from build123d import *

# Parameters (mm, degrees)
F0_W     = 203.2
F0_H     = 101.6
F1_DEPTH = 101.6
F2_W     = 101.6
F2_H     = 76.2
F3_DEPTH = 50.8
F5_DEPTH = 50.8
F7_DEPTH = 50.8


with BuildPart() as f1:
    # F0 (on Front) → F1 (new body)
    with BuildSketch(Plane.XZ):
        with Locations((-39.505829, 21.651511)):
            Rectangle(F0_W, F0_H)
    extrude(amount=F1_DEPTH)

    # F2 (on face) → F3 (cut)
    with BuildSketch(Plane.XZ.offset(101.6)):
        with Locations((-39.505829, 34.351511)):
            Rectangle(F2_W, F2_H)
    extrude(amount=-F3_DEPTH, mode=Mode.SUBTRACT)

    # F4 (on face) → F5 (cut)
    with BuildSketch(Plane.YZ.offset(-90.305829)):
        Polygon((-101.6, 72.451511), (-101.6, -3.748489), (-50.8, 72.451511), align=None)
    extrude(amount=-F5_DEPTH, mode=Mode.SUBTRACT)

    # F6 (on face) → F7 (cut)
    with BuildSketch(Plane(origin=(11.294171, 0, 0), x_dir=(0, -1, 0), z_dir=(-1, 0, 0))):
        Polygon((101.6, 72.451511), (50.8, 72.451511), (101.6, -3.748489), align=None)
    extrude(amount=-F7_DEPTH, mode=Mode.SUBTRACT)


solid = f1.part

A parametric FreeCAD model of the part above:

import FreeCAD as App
import Part
import Sketcher
Q = App.Units.Quantity

doc = App.newDocument("Part")
body = doc.addObject("PartDesign::Body", "Body")

# Sketch on XZ plane
sketch1 = body.newObject("Sketcher::SketchObject", "Sketch")
sketch1.AttachmentSupport = (doc.getObject("XZ_Plane"), [""])
sketch1.MapMode = "FlatFace"
sketch1.addGeometry([
    Part.LineSegment(App.Vector(-141, 72, 0), App.Vector(-141, -29, 0)),
    Part.LineSegment(App.Vector(-141, -29, 0), App.Vector(62, -29, 0)),
    Part.LineSegment(App.Vector(62, -29, 0), App.Vector(62, 72, 0)),
    Part.LineSegment(App.Vector(62, 72, 0), App.Vector(-141, 72, 0)),
], False)
sketch1.addConstraint([
    Sketcher.Constraint("Coincident", 0, 2, 1, 1),
    Sketcher.Constraint("Coincident", 1, 2, 2, 1),
    Sketcher.Constraint("Coincident", 2, 2, 3, 1),
    Sketcher.Constraint("Coincident", 3, 2, 0, 1),
    Sketcher.Constraint("Vertical", 0),
    Sketcher.Constraint("Horizontal", 1),
    Sketcher.Constraint("Vertical", 2),
    Sketcher.Constraint("Horizontal", 3),
    Sketcher.Constraint("DistanceX", 1, 1, 1, 2, Q("8 in")),
    Sketcher.Constraint("DistanceY", 0, 2, 0, 1, Q("4 in")),
    Sketcher.Constraint("DistanceX", 0, 2, -1, 1, Q("141.105829 mm")),
    Sketcher.Constraint("DistanceY", 0, 2, -1, 1, Q("29.148489 mm")),
])
pad1 = body.newObject("PartDesign::Pad", "Pad")
pad1.Profile = sketch1
pad1.Length = Q("4 in")

# Sketch on XZ plane
sketch2 = body.newObject("Sketcher::SketchObject", "Sketch001")
sketch2.AttachmentSupport = (doc.getObject("XZ_Plane"), [""])
sketch2.MapMode = "FlatFace"
sketch2.AttachmentOffset = App.Placement(App.Vector(0, 0, 4 * 25.4), App.Rotation())
sketch2.addGeometry([
    Part.LineSegment(App.Vector(-90, 72, 0), App.Vector(-90, -4, 0)),
    Part.LineSegment(App.Vector(-90, -4, 0), App.Vector(11, -4, 0)),
    Part.LineSegment(App.Vector(11, -4, 0), App.Vector(11, 72, 0)),
    Part.LineSegment(App.Vector(11, 72, 0), App.Vector(-90, 72, 0)),
], False)
sketch2.addConstraint([
    Sketcher.Constraint("Coincident", 0, 2, 1, 1),
    Sketcher.Constraint("Coincident", 1, 2, 2, 1),
    Sketcher.Constraint("Coincident", 2, 2, 3, 1),
    Sketcher.Constraint("Coincident", 3, 2, 0, 1),
    Sketcher.Constraint("Vertical", 0),
    Sketcher.Constraint("Horizontal", 1),
    Sketcher.Constraint("Vertical", 2),
    Sketcher.Constraint("Horizontal", 3),
    Sketcher.Constraint("DistanceX", 1, 1, 1, 2, Q("4 in")),
    Sketcher.Constraint("DistanceY", 0, 2, 0, 1, Q("3 in")),
    Sketcher.Constraint("DistanceX", 0, 2, -1, 1, Q("90.305829 mm")),
    Sketcher.Constraint("DistanceY", 0, 2, -1, 1, Q("3.748489 mm")),
])
pocket1 = body.newObject("PartDesign::Pocket", "Pocket")
pocket1.Profile = sketch2
pocket1.Length = Q("2 in")

# Sketch on YZ plane
sketch3 = body.newObject("Sketcher::SketchObject", "Sketch002")
sketch3.AttachmentSupport = (doc.getObject("YZ_Plane"), [""])
sketch3.MapMode = "FlatFace"
sketch3.AttachmentOffset = App.Placement(App.Vector(0, 0, -90.305829), App.Rotation())
sketch3.addGeometry([
    Part.LineSegment(App.Vector(-102, 72, 0), App.Vector(-102, -4, 0)),
    Part.LineSegment(App.Vector(-102, -4, 0), App.Vector(-51, 72, 0)),
    Part.LineSegment(App.Vector(-51, 72, 0), App.Vector(-102, 72, 0)),
], False)
sketch3.addConstraint([
    Sketcher.Constraint("Coincident", 0, 2, 1, 1),
    Sketcher.Constraint("Coincident", 1, 2, 2, 1),
    Sketcher.Constraint("Coincident", 2, 2, 0, 1),
    Sketcher.Constraint("Vertical", 0),
    Sketcher.Constraint("Horizontal", 2),
    Sketcher.Constraint("DistanceX", 2, 2, 2, 1, Q("2 in")),
    Sketcher.Constraint("DistanceY", 0, 2, 0, 1, Q("3 in")),
    Sketcher.Constraint("DistanceX", 0, 2, -1, 1, Q("4 in")),
    Sketcher.Constraint("DistanceY", 0, 2, -1, 1, Q("3.748489 mm")),
])
pocket2 = body.newObject("PartDesign::Pocket", "Pocket001")
pocket2.Profile = sketch3
pocket2.Length = Q("2 in")

# Sketch on YZ plane
sketch4 = body.newObject("Sketcher::SketchObject", "Sketch003")
sketch4.AttachmentSupport = (doc.getObject("YZ_Plane"), [""])
sketch4.MapMode = "FlatFace"
sketch4.AttachmentOffset = App.Placement(App.Vector(0, 0, 11.294171), App.Rotation())
sketch4.addGeometry([
    Part.LineSegment(App.Vector(-102, 72, 0), App.Vector(-51, 72, 0)),
    Part.LineSegment(App.Vector(-51, 72, 0), App.Vector(-102, -4, 0)),
    Part.LineSegment(App.Vector(-102, -4, 0), App.Vector(-102, 72, 0)),
], False)
sketch4.addConstraint([
    Sketcher.Constraint("Coincident", 0, 2, 1, 1),
    Sketcher.Constraint("Coincident", 1, 2, 2, 1),
    Sketcher.Constraint("Coincident", 2, 2, 0, 1),
    Sketcher.Constraint("Horizontal", 0),
    Sketcher.Constraint("Vertical", 2),
    Sketcher.Constraint("DistanceX", 0, 1, 0, 2, Q("2 in")),
    Sketcher.Constraint("DistanceY", 2, 1, 2, 2, Q("3 in")),
    Sketcher.Constraint("DistanceX", 0, 2, -1, 1, Q("2 in")),
    Sketcher.Constraint("DistanceY", -1, 1, 0, 2, Q("72.451511 mm")),
])
pocket3 = body.newObject("PartDesign::Pocket", "Pocket002")
pocket3.Profile = sketch4
pocket3.Length = Q("2 in")
pocket3.Reversed = True

doc.recompute()
